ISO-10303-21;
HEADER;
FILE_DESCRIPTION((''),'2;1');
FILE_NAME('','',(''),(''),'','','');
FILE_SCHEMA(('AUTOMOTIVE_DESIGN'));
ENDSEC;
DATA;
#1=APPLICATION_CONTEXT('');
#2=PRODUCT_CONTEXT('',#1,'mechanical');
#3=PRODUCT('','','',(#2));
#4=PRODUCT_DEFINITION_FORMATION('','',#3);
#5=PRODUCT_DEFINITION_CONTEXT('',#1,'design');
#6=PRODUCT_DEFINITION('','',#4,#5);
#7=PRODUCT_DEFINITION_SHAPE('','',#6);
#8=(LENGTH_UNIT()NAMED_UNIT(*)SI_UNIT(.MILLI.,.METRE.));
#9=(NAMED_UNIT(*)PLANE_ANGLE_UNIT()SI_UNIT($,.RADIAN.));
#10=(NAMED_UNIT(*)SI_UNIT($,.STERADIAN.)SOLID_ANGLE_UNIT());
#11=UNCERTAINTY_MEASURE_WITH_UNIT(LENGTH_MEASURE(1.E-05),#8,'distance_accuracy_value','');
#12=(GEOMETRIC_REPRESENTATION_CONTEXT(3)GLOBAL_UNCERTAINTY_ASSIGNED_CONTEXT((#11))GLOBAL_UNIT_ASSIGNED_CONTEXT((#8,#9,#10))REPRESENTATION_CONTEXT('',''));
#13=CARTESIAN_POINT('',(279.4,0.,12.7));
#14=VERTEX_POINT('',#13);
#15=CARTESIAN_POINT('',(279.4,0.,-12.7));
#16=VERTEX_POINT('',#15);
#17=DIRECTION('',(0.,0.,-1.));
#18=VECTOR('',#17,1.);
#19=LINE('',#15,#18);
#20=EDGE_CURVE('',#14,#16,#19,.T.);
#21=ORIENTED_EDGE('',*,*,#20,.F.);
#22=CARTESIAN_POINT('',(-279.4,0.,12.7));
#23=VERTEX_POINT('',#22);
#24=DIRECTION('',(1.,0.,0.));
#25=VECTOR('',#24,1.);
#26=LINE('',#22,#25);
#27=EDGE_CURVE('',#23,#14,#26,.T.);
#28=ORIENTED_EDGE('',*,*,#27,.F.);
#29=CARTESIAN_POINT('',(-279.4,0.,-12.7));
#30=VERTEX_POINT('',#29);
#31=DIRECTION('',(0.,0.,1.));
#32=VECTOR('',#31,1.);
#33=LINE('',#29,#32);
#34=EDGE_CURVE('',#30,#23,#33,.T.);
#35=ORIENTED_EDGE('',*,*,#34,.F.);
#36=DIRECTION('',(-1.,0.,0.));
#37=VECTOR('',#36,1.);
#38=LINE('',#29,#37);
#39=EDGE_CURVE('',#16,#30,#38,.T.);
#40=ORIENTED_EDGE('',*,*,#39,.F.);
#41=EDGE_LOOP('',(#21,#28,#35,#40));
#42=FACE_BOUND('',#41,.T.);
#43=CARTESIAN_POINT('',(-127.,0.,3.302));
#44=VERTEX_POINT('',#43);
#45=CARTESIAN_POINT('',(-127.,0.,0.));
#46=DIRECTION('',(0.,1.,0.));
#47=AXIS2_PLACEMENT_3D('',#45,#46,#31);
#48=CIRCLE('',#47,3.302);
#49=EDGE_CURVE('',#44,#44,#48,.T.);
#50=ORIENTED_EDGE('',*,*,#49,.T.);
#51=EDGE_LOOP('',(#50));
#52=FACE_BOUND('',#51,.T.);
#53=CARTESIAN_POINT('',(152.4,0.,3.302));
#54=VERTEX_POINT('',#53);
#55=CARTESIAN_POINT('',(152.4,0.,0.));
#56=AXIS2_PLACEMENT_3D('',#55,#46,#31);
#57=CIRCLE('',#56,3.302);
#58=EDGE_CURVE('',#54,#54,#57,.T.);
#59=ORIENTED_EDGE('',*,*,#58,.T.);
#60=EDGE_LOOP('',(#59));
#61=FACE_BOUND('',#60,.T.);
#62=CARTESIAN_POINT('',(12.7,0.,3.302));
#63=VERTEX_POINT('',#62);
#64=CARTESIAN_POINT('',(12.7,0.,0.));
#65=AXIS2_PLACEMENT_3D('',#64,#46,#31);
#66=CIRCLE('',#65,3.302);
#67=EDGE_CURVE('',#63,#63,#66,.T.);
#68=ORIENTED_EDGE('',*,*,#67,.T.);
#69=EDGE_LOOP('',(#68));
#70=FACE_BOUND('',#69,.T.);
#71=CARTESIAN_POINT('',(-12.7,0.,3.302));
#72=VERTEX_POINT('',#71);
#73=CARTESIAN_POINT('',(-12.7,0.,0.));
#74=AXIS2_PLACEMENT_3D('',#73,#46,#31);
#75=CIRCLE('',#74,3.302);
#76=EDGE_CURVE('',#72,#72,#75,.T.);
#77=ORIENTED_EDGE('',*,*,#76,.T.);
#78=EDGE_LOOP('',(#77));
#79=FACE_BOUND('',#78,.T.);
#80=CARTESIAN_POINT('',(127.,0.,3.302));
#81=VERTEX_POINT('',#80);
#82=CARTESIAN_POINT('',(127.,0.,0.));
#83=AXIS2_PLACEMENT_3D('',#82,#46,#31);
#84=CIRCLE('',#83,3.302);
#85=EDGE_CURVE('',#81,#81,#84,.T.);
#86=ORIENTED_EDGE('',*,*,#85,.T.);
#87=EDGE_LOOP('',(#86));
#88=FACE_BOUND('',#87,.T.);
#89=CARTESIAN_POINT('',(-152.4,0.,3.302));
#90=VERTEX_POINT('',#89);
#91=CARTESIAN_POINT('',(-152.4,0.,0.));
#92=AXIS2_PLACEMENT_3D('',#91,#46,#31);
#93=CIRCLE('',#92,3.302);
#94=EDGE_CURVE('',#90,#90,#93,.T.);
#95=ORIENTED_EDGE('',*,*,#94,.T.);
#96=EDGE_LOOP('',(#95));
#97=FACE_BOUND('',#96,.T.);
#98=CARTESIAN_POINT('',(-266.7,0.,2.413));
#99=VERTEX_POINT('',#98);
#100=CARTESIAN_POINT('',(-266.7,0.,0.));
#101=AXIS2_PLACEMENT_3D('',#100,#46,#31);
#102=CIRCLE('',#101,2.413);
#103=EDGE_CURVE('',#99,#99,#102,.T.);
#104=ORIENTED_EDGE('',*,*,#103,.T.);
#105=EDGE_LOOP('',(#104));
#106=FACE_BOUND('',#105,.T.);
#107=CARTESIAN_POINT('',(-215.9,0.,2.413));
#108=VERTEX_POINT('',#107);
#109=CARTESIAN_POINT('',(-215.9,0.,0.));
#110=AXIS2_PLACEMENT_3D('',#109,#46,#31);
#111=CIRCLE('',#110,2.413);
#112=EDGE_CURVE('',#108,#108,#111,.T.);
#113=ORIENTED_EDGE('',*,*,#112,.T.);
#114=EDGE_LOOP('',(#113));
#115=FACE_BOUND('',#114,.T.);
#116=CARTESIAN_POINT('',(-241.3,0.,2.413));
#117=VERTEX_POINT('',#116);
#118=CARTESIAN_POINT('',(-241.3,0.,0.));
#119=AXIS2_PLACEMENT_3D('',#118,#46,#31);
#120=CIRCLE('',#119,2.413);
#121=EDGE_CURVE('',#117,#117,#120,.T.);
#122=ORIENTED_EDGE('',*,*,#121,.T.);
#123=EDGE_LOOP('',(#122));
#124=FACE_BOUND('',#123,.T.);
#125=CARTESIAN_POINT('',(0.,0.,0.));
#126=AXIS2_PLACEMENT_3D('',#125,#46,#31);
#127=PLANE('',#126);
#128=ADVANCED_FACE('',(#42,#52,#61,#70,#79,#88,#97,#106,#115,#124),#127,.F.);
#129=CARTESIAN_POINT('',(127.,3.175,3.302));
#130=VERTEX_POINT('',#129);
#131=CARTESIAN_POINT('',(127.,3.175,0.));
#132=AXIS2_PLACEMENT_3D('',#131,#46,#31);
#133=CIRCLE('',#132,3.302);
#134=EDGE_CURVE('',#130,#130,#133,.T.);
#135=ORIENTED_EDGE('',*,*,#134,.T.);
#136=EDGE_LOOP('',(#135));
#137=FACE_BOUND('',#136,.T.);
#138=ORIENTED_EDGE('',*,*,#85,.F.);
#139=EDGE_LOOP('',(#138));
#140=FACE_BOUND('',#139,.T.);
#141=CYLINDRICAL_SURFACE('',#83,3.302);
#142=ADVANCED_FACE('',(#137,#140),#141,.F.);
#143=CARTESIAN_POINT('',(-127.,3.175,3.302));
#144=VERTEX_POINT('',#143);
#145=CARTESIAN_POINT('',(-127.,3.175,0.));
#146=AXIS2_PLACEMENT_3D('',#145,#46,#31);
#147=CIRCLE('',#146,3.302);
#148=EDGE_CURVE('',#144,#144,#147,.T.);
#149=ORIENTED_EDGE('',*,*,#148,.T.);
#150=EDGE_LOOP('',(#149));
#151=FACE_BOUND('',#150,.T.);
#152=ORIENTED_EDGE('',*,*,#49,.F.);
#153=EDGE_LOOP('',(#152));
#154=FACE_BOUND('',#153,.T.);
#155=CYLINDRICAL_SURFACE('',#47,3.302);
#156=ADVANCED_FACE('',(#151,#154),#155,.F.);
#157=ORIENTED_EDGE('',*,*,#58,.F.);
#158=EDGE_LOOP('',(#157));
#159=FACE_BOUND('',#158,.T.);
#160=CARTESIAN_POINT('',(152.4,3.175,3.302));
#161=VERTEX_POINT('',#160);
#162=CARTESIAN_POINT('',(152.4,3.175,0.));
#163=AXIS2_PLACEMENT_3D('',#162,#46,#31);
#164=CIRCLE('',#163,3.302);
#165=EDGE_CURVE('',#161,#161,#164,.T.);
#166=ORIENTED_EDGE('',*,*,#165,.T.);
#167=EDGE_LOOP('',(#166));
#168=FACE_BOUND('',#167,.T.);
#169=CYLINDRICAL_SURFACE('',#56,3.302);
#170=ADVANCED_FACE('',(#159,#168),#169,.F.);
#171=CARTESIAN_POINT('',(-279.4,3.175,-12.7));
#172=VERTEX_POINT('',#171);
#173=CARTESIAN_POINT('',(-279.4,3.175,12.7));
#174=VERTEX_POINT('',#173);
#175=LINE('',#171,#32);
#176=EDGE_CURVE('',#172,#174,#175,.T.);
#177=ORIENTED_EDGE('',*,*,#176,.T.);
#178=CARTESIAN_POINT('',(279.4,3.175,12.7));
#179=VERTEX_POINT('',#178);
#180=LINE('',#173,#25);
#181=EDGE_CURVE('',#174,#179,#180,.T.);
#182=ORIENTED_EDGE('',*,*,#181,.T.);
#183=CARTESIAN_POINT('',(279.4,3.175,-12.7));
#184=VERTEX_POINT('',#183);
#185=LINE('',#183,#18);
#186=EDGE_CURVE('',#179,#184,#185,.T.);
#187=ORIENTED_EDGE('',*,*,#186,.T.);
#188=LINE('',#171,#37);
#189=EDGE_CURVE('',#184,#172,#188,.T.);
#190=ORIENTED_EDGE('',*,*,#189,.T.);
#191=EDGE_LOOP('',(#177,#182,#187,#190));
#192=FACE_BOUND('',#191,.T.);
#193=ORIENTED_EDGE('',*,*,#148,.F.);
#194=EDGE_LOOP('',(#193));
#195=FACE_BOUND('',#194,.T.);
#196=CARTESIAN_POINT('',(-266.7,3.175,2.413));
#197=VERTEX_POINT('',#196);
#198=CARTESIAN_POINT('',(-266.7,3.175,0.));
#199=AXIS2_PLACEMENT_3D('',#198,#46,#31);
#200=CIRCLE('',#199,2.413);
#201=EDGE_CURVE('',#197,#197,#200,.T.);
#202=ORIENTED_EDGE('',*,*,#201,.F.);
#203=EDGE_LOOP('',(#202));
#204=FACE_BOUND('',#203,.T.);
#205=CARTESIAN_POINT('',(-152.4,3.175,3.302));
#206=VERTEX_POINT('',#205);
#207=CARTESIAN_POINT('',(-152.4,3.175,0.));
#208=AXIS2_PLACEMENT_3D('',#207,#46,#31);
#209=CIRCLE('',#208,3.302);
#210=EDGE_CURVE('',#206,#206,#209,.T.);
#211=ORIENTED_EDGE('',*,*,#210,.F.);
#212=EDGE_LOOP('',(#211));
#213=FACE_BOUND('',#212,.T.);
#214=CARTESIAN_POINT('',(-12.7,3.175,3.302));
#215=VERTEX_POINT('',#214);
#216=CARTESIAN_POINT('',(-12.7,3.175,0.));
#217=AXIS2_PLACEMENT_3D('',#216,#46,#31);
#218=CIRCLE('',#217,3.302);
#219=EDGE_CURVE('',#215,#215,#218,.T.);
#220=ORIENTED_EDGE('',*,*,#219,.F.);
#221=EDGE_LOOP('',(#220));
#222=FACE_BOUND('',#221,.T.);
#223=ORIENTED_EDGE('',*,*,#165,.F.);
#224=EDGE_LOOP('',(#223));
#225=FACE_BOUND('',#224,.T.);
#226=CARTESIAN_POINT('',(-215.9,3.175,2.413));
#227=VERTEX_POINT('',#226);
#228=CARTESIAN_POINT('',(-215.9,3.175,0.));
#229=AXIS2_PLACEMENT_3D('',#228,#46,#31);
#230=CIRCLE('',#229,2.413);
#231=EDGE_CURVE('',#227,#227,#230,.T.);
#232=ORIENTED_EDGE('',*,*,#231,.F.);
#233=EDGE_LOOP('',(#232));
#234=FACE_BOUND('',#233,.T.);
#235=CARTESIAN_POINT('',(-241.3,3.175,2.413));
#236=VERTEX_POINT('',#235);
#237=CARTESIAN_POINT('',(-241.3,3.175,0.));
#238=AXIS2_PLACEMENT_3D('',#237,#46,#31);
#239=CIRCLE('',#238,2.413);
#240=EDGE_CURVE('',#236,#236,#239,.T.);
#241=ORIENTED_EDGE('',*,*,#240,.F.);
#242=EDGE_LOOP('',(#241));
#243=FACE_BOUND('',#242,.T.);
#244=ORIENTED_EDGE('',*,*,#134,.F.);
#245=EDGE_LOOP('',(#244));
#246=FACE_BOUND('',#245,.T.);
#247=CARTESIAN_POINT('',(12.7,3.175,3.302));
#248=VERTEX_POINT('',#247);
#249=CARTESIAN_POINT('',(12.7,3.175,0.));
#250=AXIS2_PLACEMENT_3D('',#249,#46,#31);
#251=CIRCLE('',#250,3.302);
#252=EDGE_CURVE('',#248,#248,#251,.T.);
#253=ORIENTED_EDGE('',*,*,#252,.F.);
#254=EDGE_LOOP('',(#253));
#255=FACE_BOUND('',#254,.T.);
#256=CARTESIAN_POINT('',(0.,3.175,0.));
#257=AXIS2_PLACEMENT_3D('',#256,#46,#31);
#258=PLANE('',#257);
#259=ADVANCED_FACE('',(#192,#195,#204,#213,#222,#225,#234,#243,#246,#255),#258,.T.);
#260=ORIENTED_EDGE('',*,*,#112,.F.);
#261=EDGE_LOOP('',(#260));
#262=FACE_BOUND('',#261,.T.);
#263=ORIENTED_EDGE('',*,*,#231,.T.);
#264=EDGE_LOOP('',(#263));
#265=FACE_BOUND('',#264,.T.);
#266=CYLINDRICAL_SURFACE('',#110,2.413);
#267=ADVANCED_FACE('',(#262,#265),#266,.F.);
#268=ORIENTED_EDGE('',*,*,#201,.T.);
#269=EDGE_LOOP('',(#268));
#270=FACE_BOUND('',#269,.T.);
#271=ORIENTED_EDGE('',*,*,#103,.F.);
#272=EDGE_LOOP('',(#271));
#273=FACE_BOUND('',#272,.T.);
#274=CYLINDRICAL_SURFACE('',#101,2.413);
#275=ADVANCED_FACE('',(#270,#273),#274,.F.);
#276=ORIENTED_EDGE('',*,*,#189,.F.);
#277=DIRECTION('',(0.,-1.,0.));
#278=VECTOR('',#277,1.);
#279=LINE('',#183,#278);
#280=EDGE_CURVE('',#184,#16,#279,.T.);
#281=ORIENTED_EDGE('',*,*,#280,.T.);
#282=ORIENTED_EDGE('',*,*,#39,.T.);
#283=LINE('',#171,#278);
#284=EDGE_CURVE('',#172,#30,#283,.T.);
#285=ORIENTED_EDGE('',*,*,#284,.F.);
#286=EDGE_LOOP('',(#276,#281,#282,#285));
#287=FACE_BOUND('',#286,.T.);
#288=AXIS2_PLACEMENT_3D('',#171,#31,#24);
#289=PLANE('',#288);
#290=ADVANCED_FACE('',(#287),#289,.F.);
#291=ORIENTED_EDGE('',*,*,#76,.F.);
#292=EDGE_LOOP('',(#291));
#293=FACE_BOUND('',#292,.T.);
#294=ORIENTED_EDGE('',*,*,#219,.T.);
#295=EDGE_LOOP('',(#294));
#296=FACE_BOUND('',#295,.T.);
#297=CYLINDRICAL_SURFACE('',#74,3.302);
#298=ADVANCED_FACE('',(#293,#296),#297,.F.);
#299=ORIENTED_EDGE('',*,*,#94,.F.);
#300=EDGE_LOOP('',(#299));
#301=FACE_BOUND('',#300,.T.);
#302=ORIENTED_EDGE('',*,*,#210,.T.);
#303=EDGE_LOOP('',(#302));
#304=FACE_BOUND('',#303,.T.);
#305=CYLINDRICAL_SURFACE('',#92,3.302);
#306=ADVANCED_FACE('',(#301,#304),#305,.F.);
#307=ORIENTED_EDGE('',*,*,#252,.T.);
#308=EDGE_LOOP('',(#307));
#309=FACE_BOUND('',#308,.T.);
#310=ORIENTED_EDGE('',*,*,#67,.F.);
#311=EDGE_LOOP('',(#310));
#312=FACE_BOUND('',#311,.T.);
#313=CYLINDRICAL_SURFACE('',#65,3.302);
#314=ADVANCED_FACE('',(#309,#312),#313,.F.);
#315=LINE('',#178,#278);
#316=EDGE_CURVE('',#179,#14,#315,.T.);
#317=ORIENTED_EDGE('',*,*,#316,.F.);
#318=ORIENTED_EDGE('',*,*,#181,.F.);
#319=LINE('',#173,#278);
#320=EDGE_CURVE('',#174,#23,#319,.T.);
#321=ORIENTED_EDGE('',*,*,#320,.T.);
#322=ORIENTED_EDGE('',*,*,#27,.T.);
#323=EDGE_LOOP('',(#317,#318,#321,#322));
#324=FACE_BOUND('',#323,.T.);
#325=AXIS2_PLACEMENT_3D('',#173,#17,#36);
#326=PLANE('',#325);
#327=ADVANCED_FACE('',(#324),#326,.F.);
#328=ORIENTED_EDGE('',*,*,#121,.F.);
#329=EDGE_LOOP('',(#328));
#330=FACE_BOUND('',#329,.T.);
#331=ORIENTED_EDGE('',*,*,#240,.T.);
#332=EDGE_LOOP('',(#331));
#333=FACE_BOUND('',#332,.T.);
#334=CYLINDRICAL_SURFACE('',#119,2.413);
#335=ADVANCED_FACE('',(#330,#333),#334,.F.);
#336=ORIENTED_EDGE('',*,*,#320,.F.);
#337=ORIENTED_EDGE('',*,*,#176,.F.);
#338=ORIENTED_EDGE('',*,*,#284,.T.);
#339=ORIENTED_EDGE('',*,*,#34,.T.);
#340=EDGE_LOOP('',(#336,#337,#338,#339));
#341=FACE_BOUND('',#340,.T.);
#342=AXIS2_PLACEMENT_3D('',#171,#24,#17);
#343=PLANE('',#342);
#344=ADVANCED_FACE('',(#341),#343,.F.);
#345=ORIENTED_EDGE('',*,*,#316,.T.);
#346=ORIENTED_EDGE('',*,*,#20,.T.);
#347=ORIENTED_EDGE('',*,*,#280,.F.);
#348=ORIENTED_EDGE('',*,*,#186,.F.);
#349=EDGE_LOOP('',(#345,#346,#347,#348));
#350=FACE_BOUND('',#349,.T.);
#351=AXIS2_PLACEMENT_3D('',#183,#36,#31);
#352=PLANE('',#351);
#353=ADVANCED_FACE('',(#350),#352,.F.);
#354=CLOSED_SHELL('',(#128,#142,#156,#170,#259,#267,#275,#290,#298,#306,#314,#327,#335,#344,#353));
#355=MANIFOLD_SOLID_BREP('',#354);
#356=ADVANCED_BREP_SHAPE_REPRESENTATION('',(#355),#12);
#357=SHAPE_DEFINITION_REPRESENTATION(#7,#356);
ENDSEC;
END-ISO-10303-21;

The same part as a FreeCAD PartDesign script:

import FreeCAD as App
import Part
import Sketcher
from FreeCAD import Vector
Q = App.Units.Quantity


def add_polygon(sketch, points):
    """Adds a closed chain of lines whose ends are joined by coincident constraints."""
    first, n = sketch.GeometryCount, len(points)
    for a, b in zip(points, points[1:] + points[:1]):
        sketch.addGeometry(Part.LineSegment(App.Vector(*a, 0), App.Vector(*b, 0)), False)
    for i in range(n):
        sketch.addConstraint(Sketcher.Constraint("Coincident", first + i, 2, first + (i + 1) % n, 1))

doc = App.newDocument("Part")
body = doc.addObject("PartDesign::Body", "Body")

sketch1 = body.newObject("Sketcher::SketchObject", "Sketch")
sketch1.AttachmentSupport = (doc.getObject("XZ_Plane"), [""])
sketch1.MapMode = "FlatFace"
add_polygon(sketch1, [(-279, -13), (-279, 13), (279, 13), (279, -13)])
sketch1.addConstraint([
    Sketcher.Constraint("Vertical", 0),
    Sketcher.Constraint("Horizontal", 1),
    Sketcher.Constraint("Vertical", 2),
    Sketcher.Constraint("Horizontal", 3),
    Sketcher.Constraint("Symmetric", 0, 2, 2, 2, -1, 1),
    Sketcher.Constraint("DistanceX", 1, 1, 1, 2, Q("22 in")),
    Sketcher.Constraint("DistanceY", 0, 1, 0, 2, Q("1 in")),
])
pad1 = body.newObject("PartDesign::Pad", "Pad")
pad1.Profile = sketch1
pad1.Length = Q("0.125 in")
pad1.Reversed = True

sketch2 = body.newObject("Sketcher::SketchObject", "Sketch001")
sketch2.AttachmentSupport = (doc.getObject("XZ_Plane"), [""])
sketch2.MapMode = "FlatFace"
sketch2.AttachmentOffset = App.Placement(Vector(0, 0, -0.125 * 25.4), App.Rotation())
sketch2.addGeometry([
    Part.Circle(Vector(-266.7, 0, 0), Vector(0, 0, 1), 2.4),
    Part.Circle(Vector(-241.3, 0, 0), Vector(0, 0, 1), 2.4),
    Part.Circle(Vector(-215.9, 0, 0), Vector(0, 0, 1), 2.4),
], False)
sketch2.addConstraint([
    Sketcher.Constraint("Equal", 0, 1),
    Sketcher.Constraint("Equal", 1, 2),
    Sketcher.Constraint("PointOnObject", 0, 3, -1),
    Sketcher.Constraint("PointOnObject", 1, 3, -1),
    Sketcher.Constraint("PointOnObject", 2, 3, -1),
    Sketcher.Constraint("Diameter", 0, Q("0.19 in")),
    Sketcher.Constraint("DistanceX", 0, 3, 1, 3, Q("1 in")),
    Sketcher.Constraint("DistanceX", 1, 3, 2, 3, Q("1 in")),
    Sketcher.Constraint("DistanceX", 0, 3, -1, 1, Q("10.5 in")),
])
pocket1 = body.newObject("PartDesign::Pocket", "Pocket")
pocket1.Profile = sketch2
pocket1.Type = "ThroughAll"
pocket1.Reversed = True

sketch3 = body.newObject("Sketcher::SketchObject", "Sketch002")
sketch3.AttachmentSupport = (doc.getObject("XZ_Plane"), [""])
sketch3.MapMode = "FlatFace"
sketch3.AttachmentOffset = App.Placement(Vector(0, 0, -0.125 * 25.4), App.Rotation())
sketch3.addGeometry([
    Part.Circle(Vector(-152.4, 0, 0), Vector(0, 0, 1), 3.3),
    Part.Circle(Vector(-127, 0, 0), Vector(0, 0, 1), 3.3),
    Part.Circle(Vector(-12.7, 0, 0), Vector(0, 0, 1), 3.3),
    Part.Circle(Vector(12.7, 0, 0), Vector(0, 0, 1), 3.3),
    Part.Circle(Vector(127, 0, 0), Vector(0, 0, 1), 3.3),
    Part.Circle(Vector(152.4, 0, 0), Vector(0, 0, 1), 3.3),
], False)
sketch3.addConstraint([
    Sketcher.Constraint("Equal", 0, 1),
    Sketcher.Constraint("Equal", 1, 2),
    Sketcher.Constraint("Equal", 2, 3),
    Sketcher.Constraint("Equal", 3, 4),
    Sketcher.Constraint("Equal", 4, 5),
    Sketcher.Constraint("Symmetric", 2, 3, 3, 3, -1, 1),
    Sketcher.Constraint("Symmetric", 1, 3, 4, 3, -1, 1),
    Sketcher.Constraint("Symmetric", 0, 3, 5, 3, -1, 1),
    Sketcher.Constraint("PointOnObject", 0, 3, -1),
    Sketcher.Constraint("PointOnObject", 1, 3, -1),
    Sketcher.Constraint("PointOnObject", 2, 3, -1),
    Sketcher.Constraint("Diameter", 0, Q("0.26 in")),
    Sketcher.Constraint("DistanceX", 0, 3, -1, 1, Q("6 in")),
    Sketcher.Constraint("DistanceX", 1, 3, -1, 1, Q("5 in")),
    Sketcher.Constraint("DistanceX", 2, 3, 3, 3, Q("1 in")),
])
pocket2 = body.newObject("PartDesign::Pocket", "Pocket001")
pocket2.Profile = sketch3
pocket2.Type = "ThroughAll"
pocket2.Reversed = True

doc.recompute()
